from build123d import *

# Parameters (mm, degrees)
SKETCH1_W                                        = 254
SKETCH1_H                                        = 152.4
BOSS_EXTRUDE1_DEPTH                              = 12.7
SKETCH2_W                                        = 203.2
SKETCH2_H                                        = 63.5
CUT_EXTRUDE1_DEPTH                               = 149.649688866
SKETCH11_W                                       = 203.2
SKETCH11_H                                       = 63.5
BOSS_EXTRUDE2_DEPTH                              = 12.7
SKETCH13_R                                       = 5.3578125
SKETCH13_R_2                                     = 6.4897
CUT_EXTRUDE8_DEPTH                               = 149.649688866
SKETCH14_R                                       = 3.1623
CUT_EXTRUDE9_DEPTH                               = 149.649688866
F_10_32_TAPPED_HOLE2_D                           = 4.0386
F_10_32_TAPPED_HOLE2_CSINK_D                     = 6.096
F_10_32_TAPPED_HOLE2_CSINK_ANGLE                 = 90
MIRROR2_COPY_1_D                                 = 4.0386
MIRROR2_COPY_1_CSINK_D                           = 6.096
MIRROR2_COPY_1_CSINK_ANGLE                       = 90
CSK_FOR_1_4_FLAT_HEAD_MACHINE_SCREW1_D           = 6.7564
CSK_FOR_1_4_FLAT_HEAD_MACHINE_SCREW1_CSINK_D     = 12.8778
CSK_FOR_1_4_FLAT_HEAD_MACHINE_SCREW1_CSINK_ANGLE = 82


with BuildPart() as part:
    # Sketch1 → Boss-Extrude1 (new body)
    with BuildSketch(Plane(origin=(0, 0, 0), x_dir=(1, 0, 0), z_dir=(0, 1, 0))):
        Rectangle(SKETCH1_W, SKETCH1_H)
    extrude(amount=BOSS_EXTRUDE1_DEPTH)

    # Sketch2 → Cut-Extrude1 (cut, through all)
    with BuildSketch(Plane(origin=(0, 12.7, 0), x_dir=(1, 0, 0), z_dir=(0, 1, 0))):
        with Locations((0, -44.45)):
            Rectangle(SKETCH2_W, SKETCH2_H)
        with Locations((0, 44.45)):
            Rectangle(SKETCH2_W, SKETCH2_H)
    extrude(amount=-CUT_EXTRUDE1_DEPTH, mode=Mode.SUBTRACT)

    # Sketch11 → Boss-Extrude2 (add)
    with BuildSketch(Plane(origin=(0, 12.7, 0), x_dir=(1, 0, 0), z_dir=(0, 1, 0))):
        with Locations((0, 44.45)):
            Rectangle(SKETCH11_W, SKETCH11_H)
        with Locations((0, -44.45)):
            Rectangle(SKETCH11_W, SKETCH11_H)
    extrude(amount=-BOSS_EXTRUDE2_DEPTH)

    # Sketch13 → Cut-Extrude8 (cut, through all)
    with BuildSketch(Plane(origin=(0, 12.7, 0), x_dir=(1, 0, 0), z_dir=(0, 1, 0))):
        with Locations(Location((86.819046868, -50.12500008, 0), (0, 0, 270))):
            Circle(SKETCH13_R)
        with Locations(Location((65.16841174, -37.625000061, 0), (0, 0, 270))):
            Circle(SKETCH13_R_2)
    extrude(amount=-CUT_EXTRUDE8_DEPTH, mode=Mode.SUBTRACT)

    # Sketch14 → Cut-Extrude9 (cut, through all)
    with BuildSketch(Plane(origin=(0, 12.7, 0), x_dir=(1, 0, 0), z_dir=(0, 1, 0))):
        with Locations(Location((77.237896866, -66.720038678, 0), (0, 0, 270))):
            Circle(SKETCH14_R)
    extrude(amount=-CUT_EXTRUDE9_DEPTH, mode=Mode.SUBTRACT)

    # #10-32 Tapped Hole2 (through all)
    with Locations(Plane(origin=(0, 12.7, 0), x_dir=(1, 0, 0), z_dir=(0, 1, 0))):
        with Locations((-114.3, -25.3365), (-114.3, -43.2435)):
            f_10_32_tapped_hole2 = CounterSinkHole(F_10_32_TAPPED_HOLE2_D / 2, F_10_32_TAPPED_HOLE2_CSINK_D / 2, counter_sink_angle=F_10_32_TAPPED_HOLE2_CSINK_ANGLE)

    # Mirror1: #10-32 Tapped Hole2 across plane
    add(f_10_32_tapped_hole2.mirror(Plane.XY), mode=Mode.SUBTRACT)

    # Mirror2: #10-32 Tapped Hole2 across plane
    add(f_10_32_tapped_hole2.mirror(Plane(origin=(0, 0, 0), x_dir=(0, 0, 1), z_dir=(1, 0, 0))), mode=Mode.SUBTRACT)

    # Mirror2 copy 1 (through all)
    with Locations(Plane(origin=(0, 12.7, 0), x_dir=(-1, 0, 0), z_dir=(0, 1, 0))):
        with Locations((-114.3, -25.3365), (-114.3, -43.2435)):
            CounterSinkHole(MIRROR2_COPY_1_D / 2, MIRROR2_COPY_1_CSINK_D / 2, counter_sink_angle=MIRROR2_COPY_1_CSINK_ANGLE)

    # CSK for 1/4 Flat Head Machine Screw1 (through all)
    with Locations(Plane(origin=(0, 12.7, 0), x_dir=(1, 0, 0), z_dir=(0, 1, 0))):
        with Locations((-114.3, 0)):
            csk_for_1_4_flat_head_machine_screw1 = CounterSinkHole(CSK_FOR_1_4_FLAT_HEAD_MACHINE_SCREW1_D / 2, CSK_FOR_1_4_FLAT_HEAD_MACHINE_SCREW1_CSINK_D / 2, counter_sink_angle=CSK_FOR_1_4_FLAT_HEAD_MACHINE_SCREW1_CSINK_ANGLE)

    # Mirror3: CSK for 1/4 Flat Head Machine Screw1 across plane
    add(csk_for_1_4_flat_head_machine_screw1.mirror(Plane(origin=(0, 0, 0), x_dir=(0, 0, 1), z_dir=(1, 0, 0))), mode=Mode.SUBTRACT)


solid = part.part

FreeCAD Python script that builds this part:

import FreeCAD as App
import Part
import Sketcher

V = App.Vector
Q = App.Units.Quantity


def add_polygon(sketch, points):
    """Adds a closed chain of lines whose ends are joined by coincident constraints."""
    first, n = sketch.GeometryCount, len(points)
    for a, b in zip(points, points[1:] + points[:1]):
        sketch.addGeometry(Part.LineSegment(App.Vector(*a, 0), App.Vector(*b, 0)), False)
    for i in range(n):
        sketch.addConstraint(Sketcher.Constraint("Coincident", first + i, 2, first + (i + 1) % n, 1))

doc = App.newDocument("Part")
body = doc.addObject("PartDesign::Body", "Body")

# Sketch on XZ plane
sketch1 = body.newObject("Sketcher::SketchObject", "Sketch")
sketch1.AttachmentSupport = (doc.getObject("XZ_Plane"), [""])
sketch1.MapMode = "FlatFace"
add_polygon(sketch1, [(-127, -76.2), (-127, 76.2), (127, 76.2), (127, -76.2)])  # lines 0-3
sketch1.addConstraint([
    Sketcher.Constraint("Vertical", 0),
    Sketcher.Constraint("Horizontal", 1),
    Sketcher.Constraint("Vertical", 2),
    Sketcher.Constraint("Horizontal", 3),
    Sketcher.Constraint("Symmetric", 0, 2, 2, 2, -1, 1),
    Sketcher.Constraint("DistanceX", 1, 1, 1, 2, Q("10 in")),
    Sketcher.Constraint("DistanceY", 0, 1, 0, 2, Q("6 in")),
])
pad1 = body.newObject("PartDesign::Pad", "Pad")
pad1.Profile = sketch1
pad1.Length = Q("0.5 in")
pad1.Reversed = True

# Sketch on XZ plane
sketch2 = body.newObject("Sketcher::SketchObject", "Sketch001")
sketch2.AttachmentSupport = (doc.getObject("XZ_Plane"), [""])
sketch2.MapMode = "FlatFace"
sketch2.AttachmentOffset = App.Placement(V(0, 0, -0.5 * 25.4), App.Rotation())
add_polygon(sketch2, [(-101.6, 12.7), (-101.6, 76.2), (101.6, 76.2), (101.6, 12.7)])  # lines 0-3
add_polygon(sketch2, [(-101.6, -76.2), (-101.6, -12.7), (101.6, -12.7), (101.6, -76.2)])  # lines 4-7
sketch2.addConstraint([
    Sketcher.Constraint("Vertical", 0),
    Sketcher.Constraint("Horizontal", 1),
    Sketcher.Constraint("Vertical", 2),
    Sketcher.Constraint("Horizontal", 3),
    Sketcher.Constraint("Vertical", 4),
    Sketcher.Constraint("Horizontal", 5),
    Sketcher.Constraint("Vertical", 6),
    Sketcher.Constraint("Horizontal", 7),
    Sketcher.Constraint("Symmetric", 2, 2, 4, 2, -1, 1),
    Sketcher.Constraint("Symmetric", 0, 2, 6, 2, -1, 1),
    Sketcher.Constraint("Vertical", 3, 2, 4, 2),
    Sketcher.Constraint("DistanceX", 1, 1, 1, 2, Q("8 in")),
    Sketcher.Constraint("DistanceY", 0, 1, 0, 2, Q("2.5 in")),
    Sketcher.Constraint("DistanceY", -1, 1, 0, 2, Q("3 in")),
])
pocket1 = body.newObject("PartDesign::Pocket", "Pocket")
pocket1.Profile = sketch2
pocket1.Type = "ThroughAll"
pocket1.Reversed = True

# Sketch on XZ plane
sketch3 = body.newObject("Sketcher::SketchObject", "Sketch002")
sketch3.AttachmentSupport = (doc.getObject("XZ_Plane"), [""])
sketch3.MapMode = "FlatFace"
sketch3.AttachmentOffset = App.Placement(V(0, 0, -0.5 * 25.4), App.Rotation())
add_polygon(sketch3, [(-101.6, -76.2), (-101.6, -12.7), (101.6, -12.7), (101.6, -76.2)])  # lines 0-3
add_polygon(sketch3, [(-101.6, 12.7), (-101.6, 76.2), (101.6, 76.2), (101.6, 12.7)])  # lines 4-7
sketch3.addConstraint([
    Sketcher.Constraint("Vertical", 0),
    Sketcher.Constraint("Horizontal", 1),
    Sketcher.Constraint("Vertical", 2),
    Sketcher.Constraint("Horizontal", 3),
    Sketcher.Constraint("Vertical", 4),
    Sketcher.Constraint("Horizontal", 5),
    Sketcher.Constraint("Vertical", 6),
    Sketcher.Constraint("Horizontal", 7),
    Sketcher.Constraint("Symmetric", 2, 2, 4, 2, -1, 1),
    Sketcher.Constraint("Symmetric", 0, 2, 6, 2, -1, 1),
    Sketcher.Constraint("Vertical", 3, 2, 4, 2),
    Sketcher.Constraint("DistanceX", 1, 1, 1, 2, Q("8 in")),
    Sketcher.Constraint("DistanceY", 0, 1, 0, 2, Q("2.5 in")),
    Sketcher.Constraint("DistanceY", 2, 2, -1, 1, Q("3 in")),
])
pad2 = body.newObject("PartDesign::Pad", "Pad001")
pad2.Profile = sketch3
pad2.Length = Q("0.5 in")

# Sketch on XZ plane
sketch4 = body.newObject("Sketcher::SketchObject", "Sketch003")
sketch4.AttachmentSupport = (doc.getObject("XZ_Plane"), [""])
sketch4.MapMode = "FlatFace"
sketch4.AttachmentOffset = App.Placement(V(0, 0, -0.5 * 25.4), App.Rotation())
sketch4.addGeometry([
    Part.Circle(V(86.819047, 50.125, 0), V(0, 0, 1), 5.357812),
    Part.Circle(V(65.168412, 37.625, 0), V(0, 0, 1), 6.4897),
], False)
sketch4.addConstraint([
    Sketcher.Constraint("Diameter", 0, Q("0.421875 in")),
    Sketcher.Constraint("Diameter", 1, Q("0.511 in")),
    Sketcher.Constraint("DistanceY", -1, 1, 0, 3, 50.125),
    Sketcher.Constraint("DistanceY", -1, 1, 1, 3, 37.625),
    Sketcher.Constraint("DistanceX", -1, 1, 1, 3, 65.168412),
    Sketcher.Constraint("DistanceX", -1, 1, 0, 3, 86.819047),
])
pocket2 = body.newObject("PartDesign::Pocket", "Pocket001")
pocket2.Profile = sketch4
pocket2.Type = "ThroughAll"
pocket2.Reversed = True

# Sketch on XZ plane
sketch5 = body.newObject("Sketcher::SketchObject", "Sketch004")
sketch5.AttachmentSupport = (doc.getObject("XZ_Plane"), [""])
sketch5.MapMode = "FlatFace"
sketch5.AttachmentOffset = App.Placement(V(0, 0, -0.5 * 25.4), App.Rotation())
sketch5.addGeometry(Part.Circle(V(77.237897, 66.720039, 0), V(0, 0, 1), 3.1623), False)
sketch5.addConstraint([
    Sketcher.Constraint("Diameter", 0, Q("0.249 in")),
    Sketcher.Constraint("DistanceY", -1, 1, 0, 3, 66.720039),
    Sketcher.Constraint("DistanceX", -1, 1, 0, 3, 77.237897),
])
pocket3 = body.newObject("PartDesign::Pocket", "Pocket002")
pocket3.Profile = sketch5
pocket3.Type = "ThroughAll"
pocket3.Reversed = True

# Sketch on XZ plane
sketch6 = body.newObject("Sketcher::SketchObject", "Sketch005")
sketch6.AttachmentSupport = (doc.getObject("XZ_Plane"), [""])
sketch6.MapMode = "FlatFace"
sketch6.AttachmentOffset = App.Placement(V(0, 0, -0.5 * 25.4), App.Rotation())
sketch6.addGeometry([
    Part.Circle(V(-114.3, 25.3365, 0), V(0, 0, 1), 2.0193),
    Part.Circle(V(-114.3, 43.2435, 0), V(0, 0, 1), 2.0193),
], False)
sketch6.addConstraint([
    Sketcher.Constraint("Equal", 0, 1),
    Sketcher.Constraint("Vertical", 0, 3, 1, 3),
    Sketcher.Constraint("Diameter", 0, Q("0.159 in")),
    Sketcher.Constraint("DistanceX", 0, 3, -1, 1, Q("4.5 in")),
    Sketcher.Constraint("DistanceY", 0, 3, 1, 3, Q("0.705 in")),
    Sketcher.Constraint("DistanceY", -1, 1, 0, 3, Q("0.9975 in")),
])
doc.recompute()
hole = body.newObject("PartDesign::Hole", "Hole")
hole.Profile = sketch6
hole.ThreadType = "None"
hole.Diameter = Q("0.159 in")
hole.DepthType = "ThroughAll"
hole.HoleCutType = "Countersink"
hole.HoleCutDiameter = Q("0.24 in")
hole.HoleCutCountersinkAngle = 90
hole.Reversed = True
doc.recompute()

mirrored = body.newObject("PartDesign::Mirrored", "Mirrored")
mirrored.Originals = [hole]
mirrored.MirrorPlane = (doc.getObject("XY_Plane"), [""])
body.Tip = mirrored
doc.recompute()

mirrored2 = body.newObject("PartDesign::Mirrored", "Mirrored001")
mirrored2.Originals = [hole]
mirrored2.MirrorPlane = (doc.getObject("YZ_Plane"), [""])
body.Tip = mirrored2

# Sketch on XZ plane
sketch7 = body.newObject("Sketcher::SketchObject", "Sketch006")
sketch7.AttachmentSupport = (doc.getObject("XZ_Plane"), [""])
sketch7.MapMode = "FlatFace"
sketch7.AttachmentOffset = App.Placement(V(0, 0, -0.5 * 25.4), App.Rotation())
sketch7.addGeometry([
    Part.Circle(V(114.3, -25.3365, 0), V(0, 0, 1), 2.0193),
    Part.Circle(V(114.3, -43.2435, 0), V(0, 0, 1), 2.0193),
], False)
sketch7.addConstraint([
    Sketcher.Constraint("Equal", 0, 1),
    Sketcher.Constraint("Vertical", 0, 3, 1, 3),
    Sketcher.Constraint("Diameter", 0, Q("0.159 in")),
    Sketcher.Constraint("DistanceX", -1, 1, 0, 3, Q("4.5 in")),
    Sketcher.Constraint("DistanceY", 1, 3, 0, 3, Q("0.705 in")),
    Sketcher.Constraint("DistanceY", 0, 3, -1, 1, Q("0.9975 in")),
])
doc.recompute()
hole2 = body.newObject("PartDesign::Hole", "Hole001")
hole2.Profile = sketch7
hole2.ThreadType = "None"
hole2.Diameter = Q("0.159 in")
hole2.DepthType = "ThroughAll"
hole2.HoleCutType = "Countersink"
hole2.HoleCutDiameter = Q("0.24 in")
hole2.HoleCutCountersinkAngle = 90
hole2.Reversed = True

# Sketch on XZ plane
sketch8 = body.newObject("Sketcher::SketchObject", "Sketch007")
sketch8.AttachmentSupport = (doc.getObject("XZ_Plane"), [""])
sketch8.MapMode = "FlatFace"
sketch8.AttachmentOffset = App.Placement(V(0, 0, -0.5 * 25.4), App.Rotation())
sketch8.addGeometry(Part.Circle(V(-114.3, 0, 0), V(0, 0, 1), 3.3782), False)
sketch8.addConstraint([
    Sketcher.Constraint("PointOnObject", 0, 3, -1),
    Sketcher.Constraint("Diameter", 0, Q("0.266 in")),
    Sketcher.Constraint("DistanceX", 0, 3, -1, 1, Q("4.5 in")),
])
doc.recompute()
hole3 = body.newObject("PartDesign::Hole", "Hole002")
hole3.Profile = sketch8
hole3.ThreadType = "None"
hole3.Diameter = Q("0.266 in")
hole3.DepthType = "ThroughAll"
hole3.HoleCutType = "Countersink"
hole3.HoleCutDiameter = Q("0.507 in")
hole3.HoleCutCountersinkAngle = 82
hole3.Reversed = True
doc.recompute()

mirrored3 = body.newObject("PartDesign::Mirrored", "Mirrored002")
mirrored3.Originals = [hole3]
mirrored3.MirrorPlane = (doc.getObject("YZ_Plane"), [""])
body.Tip = mirrored3

doc.recompute()
